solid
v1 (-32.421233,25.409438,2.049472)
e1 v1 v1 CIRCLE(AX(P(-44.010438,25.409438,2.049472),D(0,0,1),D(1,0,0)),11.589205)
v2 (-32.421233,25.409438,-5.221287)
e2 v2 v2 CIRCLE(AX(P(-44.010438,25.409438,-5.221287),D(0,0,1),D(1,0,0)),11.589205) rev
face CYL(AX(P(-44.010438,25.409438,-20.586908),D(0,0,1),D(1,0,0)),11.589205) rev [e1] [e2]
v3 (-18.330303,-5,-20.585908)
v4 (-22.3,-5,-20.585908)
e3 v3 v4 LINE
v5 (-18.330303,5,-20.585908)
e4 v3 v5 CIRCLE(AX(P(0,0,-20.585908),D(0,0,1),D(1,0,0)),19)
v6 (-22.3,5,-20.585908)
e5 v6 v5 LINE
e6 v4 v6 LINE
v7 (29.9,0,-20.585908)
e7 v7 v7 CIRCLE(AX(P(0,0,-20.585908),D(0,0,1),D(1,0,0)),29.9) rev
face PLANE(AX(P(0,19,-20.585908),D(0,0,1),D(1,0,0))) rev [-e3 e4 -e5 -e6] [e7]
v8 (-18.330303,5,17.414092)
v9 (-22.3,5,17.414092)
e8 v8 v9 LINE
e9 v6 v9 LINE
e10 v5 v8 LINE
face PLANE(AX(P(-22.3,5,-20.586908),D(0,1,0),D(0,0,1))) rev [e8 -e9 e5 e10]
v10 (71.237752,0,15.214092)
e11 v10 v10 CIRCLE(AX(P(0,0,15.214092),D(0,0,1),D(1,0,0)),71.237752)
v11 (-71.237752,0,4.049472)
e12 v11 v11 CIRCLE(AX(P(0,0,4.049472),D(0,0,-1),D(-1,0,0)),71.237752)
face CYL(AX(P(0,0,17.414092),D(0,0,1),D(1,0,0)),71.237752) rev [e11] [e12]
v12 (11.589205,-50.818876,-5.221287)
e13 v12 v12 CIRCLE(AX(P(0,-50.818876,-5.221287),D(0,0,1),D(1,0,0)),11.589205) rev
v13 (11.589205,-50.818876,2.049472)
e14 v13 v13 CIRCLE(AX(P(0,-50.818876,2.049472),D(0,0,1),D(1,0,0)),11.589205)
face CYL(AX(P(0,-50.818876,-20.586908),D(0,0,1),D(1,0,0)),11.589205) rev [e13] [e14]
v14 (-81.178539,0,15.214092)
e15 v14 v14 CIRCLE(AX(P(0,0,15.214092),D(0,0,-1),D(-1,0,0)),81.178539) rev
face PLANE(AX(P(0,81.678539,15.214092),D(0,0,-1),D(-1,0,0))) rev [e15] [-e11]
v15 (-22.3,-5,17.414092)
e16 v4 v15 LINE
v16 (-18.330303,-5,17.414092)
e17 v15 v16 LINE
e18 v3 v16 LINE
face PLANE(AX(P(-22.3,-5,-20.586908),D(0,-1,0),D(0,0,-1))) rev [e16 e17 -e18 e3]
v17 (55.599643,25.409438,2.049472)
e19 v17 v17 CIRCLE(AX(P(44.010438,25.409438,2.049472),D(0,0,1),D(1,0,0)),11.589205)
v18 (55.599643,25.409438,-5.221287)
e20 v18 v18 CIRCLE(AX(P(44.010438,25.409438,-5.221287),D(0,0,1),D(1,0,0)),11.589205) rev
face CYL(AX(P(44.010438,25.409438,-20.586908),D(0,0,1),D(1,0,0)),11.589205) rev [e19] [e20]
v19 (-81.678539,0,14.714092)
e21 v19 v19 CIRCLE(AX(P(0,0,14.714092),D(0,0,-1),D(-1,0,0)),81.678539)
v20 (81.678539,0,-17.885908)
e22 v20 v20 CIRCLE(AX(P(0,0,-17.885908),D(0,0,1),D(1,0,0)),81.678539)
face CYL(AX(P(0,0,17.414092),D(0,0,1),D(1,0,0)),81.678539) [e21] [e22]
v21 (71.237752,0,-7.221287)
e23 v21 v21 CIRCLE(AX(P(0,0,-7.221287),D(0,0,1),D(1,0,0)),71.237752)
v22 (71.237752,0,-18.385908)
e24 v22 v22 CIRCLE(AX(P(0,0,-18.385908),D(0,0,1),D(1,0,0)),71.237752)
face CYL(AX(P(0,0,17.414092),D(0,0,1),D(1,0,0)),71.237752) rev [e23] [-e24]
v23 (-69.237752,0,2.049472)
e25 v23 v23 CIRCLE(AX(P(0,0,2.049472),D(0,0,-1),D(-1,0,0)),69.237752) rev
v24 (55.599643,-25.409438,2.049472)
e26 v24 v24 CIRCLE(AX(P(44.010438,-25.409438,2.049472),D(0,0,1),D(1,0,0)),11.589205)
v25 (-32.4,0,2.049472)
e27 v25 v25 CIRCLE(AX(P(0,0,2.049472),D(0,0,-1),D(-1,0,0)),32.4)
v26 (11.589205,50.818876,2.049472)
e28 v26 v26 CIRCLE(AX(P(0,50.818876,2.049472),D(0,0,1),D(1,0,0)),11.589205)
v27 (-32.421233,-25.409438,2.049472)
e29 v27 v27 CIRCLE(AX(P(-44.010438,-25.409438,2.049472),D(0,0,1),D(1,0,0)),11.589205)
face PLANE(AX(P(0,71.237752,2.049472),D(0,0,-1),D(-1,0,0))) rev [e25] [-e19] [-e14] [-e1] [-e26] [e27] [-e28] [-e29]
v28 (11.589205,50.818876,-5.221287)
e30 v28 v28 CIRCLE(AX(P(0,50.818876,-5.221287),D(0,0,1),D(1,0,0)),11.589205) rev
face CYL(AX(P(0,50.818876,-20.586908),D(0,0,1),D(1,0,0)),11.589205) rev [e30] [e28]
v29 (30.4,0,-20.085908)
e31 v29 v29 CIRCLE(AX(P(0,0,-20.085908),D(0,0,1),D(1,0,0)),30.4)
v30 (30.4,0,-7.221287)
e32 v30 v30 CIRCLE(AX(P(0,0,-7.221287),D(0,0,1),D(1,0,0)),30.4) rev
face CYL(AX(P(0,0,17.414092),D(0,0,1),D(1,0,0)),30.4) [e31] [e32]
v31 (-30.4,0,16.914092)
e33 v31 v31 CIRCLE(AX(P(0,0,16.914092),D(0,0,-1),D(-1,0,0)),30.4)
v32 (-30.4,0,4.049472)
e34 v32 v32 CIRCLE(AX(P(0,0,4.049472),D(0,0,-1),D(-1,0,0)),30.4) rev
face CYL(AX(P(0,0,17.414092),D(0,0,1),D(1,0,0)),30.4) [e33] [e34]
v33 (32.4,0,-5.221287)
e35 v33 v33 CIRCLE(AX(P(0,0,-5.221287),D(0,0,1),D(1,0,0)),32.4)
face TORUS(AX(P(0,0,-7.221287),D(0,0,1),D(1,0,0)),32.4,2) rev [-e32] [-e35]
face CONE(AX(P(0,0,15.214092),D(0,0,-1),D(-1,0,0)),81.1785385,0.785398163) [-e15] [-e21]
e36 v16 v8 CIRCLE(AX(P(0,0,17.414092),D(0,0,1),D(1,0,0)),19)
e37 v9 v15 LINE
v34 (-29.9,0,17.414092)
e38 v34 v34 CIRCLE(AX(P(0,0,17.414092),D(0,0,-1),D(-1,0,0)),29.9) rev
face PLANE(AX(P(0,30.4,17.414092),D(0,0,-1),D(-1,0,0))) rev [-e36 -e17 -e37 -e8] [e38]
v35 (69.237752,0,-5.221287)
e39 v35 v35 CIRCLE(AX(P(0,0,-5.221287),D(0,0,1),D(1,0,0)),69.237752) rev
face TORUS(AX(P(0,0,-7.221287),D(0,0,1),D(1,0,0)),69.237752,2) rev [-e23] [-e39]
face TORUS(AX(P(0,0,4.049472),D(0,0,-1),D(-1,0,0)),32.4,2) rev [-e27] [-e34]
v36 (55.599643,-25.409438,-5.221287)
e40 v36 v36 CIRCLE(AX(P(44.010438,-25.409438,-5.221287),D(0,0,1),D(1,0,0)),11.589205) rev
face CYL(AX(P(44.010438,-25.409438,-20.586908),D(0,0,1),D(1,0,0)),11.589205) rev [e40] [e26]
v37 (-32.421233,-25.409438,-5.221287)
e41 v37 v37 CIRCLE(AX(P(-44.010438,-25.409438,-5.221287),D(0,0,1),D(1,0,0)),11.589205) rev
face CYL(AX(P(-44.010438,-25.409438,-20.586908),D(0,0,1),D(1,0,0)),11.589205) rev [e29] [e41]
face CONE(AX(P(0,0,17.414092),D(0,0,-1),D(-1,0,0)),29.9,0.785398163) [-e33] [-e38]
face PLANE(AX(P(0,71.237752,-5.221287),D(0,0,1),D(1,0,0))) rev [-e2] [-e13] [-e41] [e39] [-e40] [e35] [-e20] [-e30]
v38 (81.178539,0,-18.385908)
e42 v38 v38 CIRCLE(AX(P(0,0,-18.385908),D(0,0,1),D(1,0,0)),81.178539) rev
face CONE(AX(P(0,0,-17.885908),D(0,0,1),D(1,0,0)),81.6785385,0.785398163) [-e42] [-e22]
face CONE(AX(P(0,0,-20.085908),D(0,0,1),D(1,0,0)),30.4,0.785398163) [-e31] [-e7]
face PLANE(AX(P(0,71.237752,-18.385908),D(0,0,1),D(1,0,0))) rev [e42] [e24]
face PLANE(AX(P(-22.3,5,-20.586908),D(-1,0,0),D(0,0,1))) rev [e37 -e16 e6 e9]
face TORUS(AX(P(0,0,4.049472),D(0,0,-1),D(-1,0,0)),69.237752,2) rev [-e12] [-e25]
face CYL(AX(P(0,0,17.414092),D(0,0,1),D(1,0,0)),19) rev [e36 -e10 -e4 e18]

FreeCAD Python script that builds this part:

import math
import FreeCAD as App
import Part
import Sketcher
from FreeCAD import Vector


def edges_at(feature, points):
    """Names of the edges that pass closest to the given points."""
    edges = feature.Shape.Edges
    near = lambda p: min(range(len(edges)), key=lambda i: edges[i].distToShape(Part.Vertex(*p))[0])
    return sorted({f"Edge{near(p) + 1}" for p in points})

doc = App.newDocument("Part")
params = doc.addObject("Spreadsheet::Sheet", "Params")
for row, (alias, value) in enumerate([
    ("sketch1_height", "38 mm"),
    ("sketch1_width", "11.4 mm"),
    ("sketch1_height2", "33.6 mm"),
    ("revolution_angle", "360 deg"),
    ("fillet_radius", "2 mm"),
    ("sketch8_radius", "19 mm"),
    ("sketch8_height", "10 mm"),
    ("chamfer_size", "0.5 mm"),
], start=1):
    params.set(f"A{row}", alias)
    params.set(f"B{row}", "=" + value)
    params.setAlias(f"B{row}", alias)

body = doc.addObject("PartDesign::Body", "Body")

sketch1 = body.newObject("Sketcher::SketchObject", "Sketch")
sketch1.AttachmentSupport = (doc.getObject("YZ_Plane"), [""])
sketch1.MapMode = "FlatFace"
sketch1.addGeometry([
    Part.LineSegment(Vector(19, 17, 0), Vector(19, -21, 0)),
    Part.LineSegment(Vector(19, -21, 0), Vector(30, -21, 0)),
    Part.LineSegment(Vector(30, -21, 0), Vector(30, -5, 0)),
    Part.LineSegment(Vector(30, -5, 0), Vector(71, -5, 0)),
    Part.LineSegment(Vector(71, -5, 0), Vector(71, -18, 0)),
    Part.LineSegment(Vector(71, -18, 0), Vector(82, -18, 0)),
    Part.LineSegment(Vector(82, -18, 0), Vector(82, 15, 0)),
    Part.LineSegment(Vector(82, 15, 0), Vector(71, 15, 0)),
    Part.LineSegment(Vector(71, 15, 0), Vector(71, 2, 0)),
    Part.LineSegment(Vector(71, 2, 0), Vector(30, 2, 0)),
    Part.LineSegment(Vector(30, 2, 0), Vector(30, 17, 0)),
    Part.LineSegment(Vector(30, 17, 0), Vector(19, 17, 0)),
], False)
sketch1.addConstraint([
    Sketcher.Constraint("Coincident", 0, 2, 1, 1),
    Sketcher.Constraint("Coincident", 1, 2, 2, 1),
    Sketcher.Constraint("Coincident", 2, 2, 3, 1),
    Sketcher.Constraint("Coincident", 3, 2, 4, 1),
    Sketcher.Constraint("Coincident", 4, 2, 5, 1),
    Sketcher.Constraint("Coincident", 5, 2, 6, 1),
    Sketcher.Constraint("Coincident", 6, 2, 7, 1),
    Sketcher.Constraint("Coincident", 7, 2, 8, 1),
    Sketcher.Constraint("Coincident", 8, 2, 9, 1),
    Sketcher.Constraint("Coincident", 9, 2, 10, 1),
    Sketcher.Constraint("Coincident", 10, 2, 11, 1),
    Sketcher.Constraint("Coincident", 11, 2, 0, 1),
    Sketcher.Constraint("Vertical", 0),
    Sketcher.Constraint("Horizontal", 1),
    Sketcher.Constraint("Vertical", 2),
    Sketcher.Constraint("Horizontal", 3),
    Sketcher.Constraint("Vertical", 4),
    Sketcher.Constraint("Horizontal", 5),
    Sketcher.Constraint("Vertical", 6),
    Sketcher.Constraint("Horizontal", 7),
    Sketcher.Constraint("Vertical", 8),
    Sketcher.Constraint("Horizontal", 9),
    Sketcher.Constraint("Vertical", 10),
    Sketcher.Constraint("Horizontal", 11),
    Sketcher.Constraint("Vertical", 4, 2, 7, 2),
    Sketcher.Constraint("Vertical", 2, 2, 9, 2),
    Sketcher.Constraint("Equal", 4, 8),
    Sketcher.Constraint("Equal", 2, 10),
    Sketcher.Constraint("DistanceY", 0, 2, 0, 1, 38.0),
    Sketcher.Constraint("DistanceX", 1, 1, 1, 2, 11.4),
    Sketcher.Constraint("DistanceY", 6, 1, 6, 2, 33.6),
    Sketcher.Constraint("DistanceX", -1, 1, 0, 2, 19.0),
    Sketcher.Constraint("DistanceY", 2, 1, 2, 2, 15.364621),
    Sketcher.Constraint("DistanceX", 3, 1, 3, 2, 40.837752),
    Sketcher.Constraint("DistanceX", 5, 1, 5, 2, 10.440786),
    Sketcher.Constraint("DistanceY", -1, 1, 8, 2, 2.049472),
])
sketch1.setExpression("Constraints[28]", "Params.sketch1_height")
sketch1.setExpression("Constraints[29]", "Params.sketch1_width")
sketch1.setExpression("Constraints[30]", "Params.sketch1_height2")
revolution = body.newObject("PartDesign::Revolution", "Revolution")
revolution.Profile = sketch1
revolution.ReferenceAxis = (sketch1, ["V_Axis"])
revolution.setExpression("Angle", "Params.revolution_angle")

sketch2 = body.newObject("Sketcher::SketchObject", "Sketch001")
sketch2.AttachmentSupport = (doc.getObject("XY_Plane"), [""])
sketch2.MapMode = "FlatFace"
sketch2.AttachmentOffset = App.Placement(Vector(0, 0, 2.049472), App.Rotation())
sketch2.addGeometry(Part.Circle(Vector(0, 51, 0), Vector(0, 0, 1), 12), False)
sketch2.addConstraint([
    Sketcher.Constraint("PointOnObject", 0, 3, -2),
    Sketcher.Constraint("Diameter", 0, 23.17841),
    Sketcher.Constraint("DistanceY", -1, 1, 0, 3, 50.818876),
])
pocket1 = body.newObject("PartDesign::Pocket", "Pocket")
pocket1.Profile = sketch2
pocket1.Type = "UpToFirst"

sketch3 = body.newObject("Sketcher::SketchObject", "Sketch002")
sketch3.AttachmentSupport = (doc.getObject("XY_Plane"), [""])
sketch3.MapMode = "FlatFace"
sketch3.AttachmentOffset = App.Placement(Vector(0, 0, 2.049472), App.Rotation())
sketch3.addGeometry(Part.Circle(Vector(44, 25, 0), Vector(0, 0, 1), 12), False)
sketch3.addConstraint([
    Sketcher.Constraint("Diameter", 0, 23.17841),
    Sketcher.Constraint("DistanceY", -1, 1, 0, 3, 25.409438),
    Sketcher.Constraint("DistanceX", -1, 1, 0, 3, 44.010438),
])
pocket2 = body.newObject("PartDesign::Pocket", "Pocket001")
pocket2.Profile = sketch3
pocket2.Type = "UpToFirst"

sketch4 = body.newObject("Sketcher::SketchObject", "Sketch003")
sketch4.AttachmentSupport = (doc.getObject("XY_Plane"), [""])
sketch4.MapMode = "FlatFace"
sketch4.AttachmentOffset = App.Placement(Vector(0, 0, 2.049472), App.Rotation())
sketch4.addGeometry(Part.Circle(Vector(44, -25, 0), Vector(0, 0, 1), 12), False)
sketch4.addConstraint([
    Sketcher.Constraint("Diameter", 0, 23.17841),
    Sketcher.Constraint("DistanceY", 0, 3, -1, 1, 25.409438),
    Sketcher.Constraint("DistanceX", -1, 1, 0, 3, 44.010438),
])
pocket3 = body.newObject("PartDesign::Pocket", "Pocket002")
pocket3.Profile = sketch4
pocket3.Type = "UpToFirst"

sketch5 = body.newObject("Sketcher::SketchObject", "Sketch004")
sketch5.AttachmentSupport = (doc.getObject("XY_Plane"), [""])
sketch5.MapMode = "FlatFace"
sketch5.AttachmentOffset = App.Placement(Vector(0, 0, 2.049472), App.Rotation())
sketch5.addGeometry(Part.Circle(Vector(0, -51, 0), Vector(0, 0, 1), 12), False)
sketch5.addConstraint([
    Sketcher.Constraint("PointOnObject", 0, 3, -2),
    Sketcher.Constraint("Diameter", 0, 23.17841),
    Sketcher.Constraint("DistanceY", 0, 3, -1, 1, 50.818876),
])
pocket4 = body.newObject("PartDesign::Pocket", "Pocket003")
pocket4.Profile = sketch5
pocket4.Type = "UpToFirst"

sketch6 = body.newObject("Sketcher::SketchObject", "Sketch005")
sketch6.AttachmentSupport = (doc.getObject("XY_Plane"), [""])
sketch6.MapMode = "FlatFace"
sketch6.AttachmentOffset = App.Placement(Vector(0, 0, 2.049472), App.Rotation())
sketch6.addGeometry(Part.Circle(Vector(-44, -25, 0), Vector(0, 0, 1), 12), False)
sketch6.addConstraint([
    Sketcher.Constraint("Diameter", 0, 23.17841),
    Sketcher.Constraint("DistanceY", 0, 3, -1, 1, 25.409438),
    Sketcher.Constraint("DistanceX", 0, 3, -1, 1, 44.010438),
])
pocket5 = body.newObject("PartDesign::Pocket", "Pocket004")
pocket5.Profile = sketch6
pocket5.Type = "UpToFirst"

sketch7 = body.newObject("Sketcher::SketchObject", "Sketch006")
sketch7.AttachmentSupport = (doc.getObject("XY_Plane"), [""])
sketch7.MapMode = "FlatFace"
sketch7.AttachmentOffset = App.Placement(Vector(0, 0, 2.049472), App.Rotation())
sketch7.addGeometry(Part.Circle(Vector(-44, 25, 0), Vector(0, 0, 1), 12), False)
sketch7.addConstraint([
    Sketcher.Constraint("Diameter", 0, 23.17841),
    Sketcher.Constraint("DistanceY", -1, 1, 0, 3, 25.409438),
    Sketcher.Constraint("DistanceX", 0, 3, -1, 1, 44.010438),
])
pocket6 = body.newObject("PartDesign::Pocket", "Pocket005")
pocket6.Profile = sketch7
pocket6.Type = "UpToFirst"
doc.recompute()

fillet = body.newObject("PartDesign::Fillet", "Fillet")
fillet.Base = (pocket6, edges_at(pocket6, [
    (-71.238, 0, 2.049),
    (-71.238, 0, -5.221),
    (-30.4, 0, -5.221),
    (-30.4, 0, 2.049),
]))
fillet.setExpression("Radius", "Params.fillet_radius")

sketch8 = body.newObject("Sketcher::SketchObject", "Sketch007")
sketch8.AttachmentSupport = (doc.getObject("XY_Plane"), [""])
sketch8.MapMode = "FlatFace"
sketch8.AttachmentOffset = App.Placement(Vector(0, 0, 17.414092), App.Rotation())
sketch8.addGeometry([
    Part.LineSegment(Vector(-22.3, 5, 0), Vector(-22.3, -5, 0)),
    Part.LineSegment(Vector(-22.3, -5, 0), Vector(-18.3, -5, 0)),
    Part.ArcOfCircle(Part.Circle(Vector(0, 0, 0), Vector(0, 0, 1), 19), math.radians(165), math.radians(195)),
    Part.LineSegment(Vector(-18.3, 5, 0), Vector(-22.3, 5, 0)),
], False)
sketch8.addConstraint([
    Sketcher.Constraint("Coincident", 0, 2, 1, 1),
    Sketcher.Constraint("Coincident", 1, 2, 2, 2),
    Sketcher.Constraint("Coincident", 2, 1, 3, 1),
    Sketcher.Constraint("Coincident", 3, 2, 0, 1),
    Sketcher.Constraint("Vertical", 0),
    Sketcher.Constraint("Horizontal", 1),
    Sketcher.Constraint("Horizontal", 3),
    Sketcher.Constraint("Coincident", 2, 3, -1, 1),
    Sketcher.Constraint("Vertical", 1, 2, 2, 1),
    Sketcher.Constraint("Radius", 2, 19.0),
    Sketcher.Constraint("DistanceY", 0, 2, 0, 1, 10.0),
    Sketcher.Constraint("DistanceX", 0, 2, -1, 1, 22.3),
])
sketch8.setExpression("Constraints[9]", "Params.sketch8_radius")
sketch8.setExpression("Constraints[10]", "Params.sketch8_height")
pocket7 = body.newObject("PartDesign::Pocket", "Pocket006")
pocket7.Profile = sketch8
pocket7.Type = "UpToFirst"
doc.recompute()

chamfer = body.newObject("PartDesign::Chamfer", "Chamfer")
chamfer.Base = (pocket7, edges_at(pocket7, [
    (-81.679, 0, 15.214),
    (-81.679, 0, -18.386),
    (-30.4, 0, -20.586),
    (-30.4, 0, 17.414),
]))
chamfer.setExpression("Size", "Params.chamfer_size")

doc.recompute()
